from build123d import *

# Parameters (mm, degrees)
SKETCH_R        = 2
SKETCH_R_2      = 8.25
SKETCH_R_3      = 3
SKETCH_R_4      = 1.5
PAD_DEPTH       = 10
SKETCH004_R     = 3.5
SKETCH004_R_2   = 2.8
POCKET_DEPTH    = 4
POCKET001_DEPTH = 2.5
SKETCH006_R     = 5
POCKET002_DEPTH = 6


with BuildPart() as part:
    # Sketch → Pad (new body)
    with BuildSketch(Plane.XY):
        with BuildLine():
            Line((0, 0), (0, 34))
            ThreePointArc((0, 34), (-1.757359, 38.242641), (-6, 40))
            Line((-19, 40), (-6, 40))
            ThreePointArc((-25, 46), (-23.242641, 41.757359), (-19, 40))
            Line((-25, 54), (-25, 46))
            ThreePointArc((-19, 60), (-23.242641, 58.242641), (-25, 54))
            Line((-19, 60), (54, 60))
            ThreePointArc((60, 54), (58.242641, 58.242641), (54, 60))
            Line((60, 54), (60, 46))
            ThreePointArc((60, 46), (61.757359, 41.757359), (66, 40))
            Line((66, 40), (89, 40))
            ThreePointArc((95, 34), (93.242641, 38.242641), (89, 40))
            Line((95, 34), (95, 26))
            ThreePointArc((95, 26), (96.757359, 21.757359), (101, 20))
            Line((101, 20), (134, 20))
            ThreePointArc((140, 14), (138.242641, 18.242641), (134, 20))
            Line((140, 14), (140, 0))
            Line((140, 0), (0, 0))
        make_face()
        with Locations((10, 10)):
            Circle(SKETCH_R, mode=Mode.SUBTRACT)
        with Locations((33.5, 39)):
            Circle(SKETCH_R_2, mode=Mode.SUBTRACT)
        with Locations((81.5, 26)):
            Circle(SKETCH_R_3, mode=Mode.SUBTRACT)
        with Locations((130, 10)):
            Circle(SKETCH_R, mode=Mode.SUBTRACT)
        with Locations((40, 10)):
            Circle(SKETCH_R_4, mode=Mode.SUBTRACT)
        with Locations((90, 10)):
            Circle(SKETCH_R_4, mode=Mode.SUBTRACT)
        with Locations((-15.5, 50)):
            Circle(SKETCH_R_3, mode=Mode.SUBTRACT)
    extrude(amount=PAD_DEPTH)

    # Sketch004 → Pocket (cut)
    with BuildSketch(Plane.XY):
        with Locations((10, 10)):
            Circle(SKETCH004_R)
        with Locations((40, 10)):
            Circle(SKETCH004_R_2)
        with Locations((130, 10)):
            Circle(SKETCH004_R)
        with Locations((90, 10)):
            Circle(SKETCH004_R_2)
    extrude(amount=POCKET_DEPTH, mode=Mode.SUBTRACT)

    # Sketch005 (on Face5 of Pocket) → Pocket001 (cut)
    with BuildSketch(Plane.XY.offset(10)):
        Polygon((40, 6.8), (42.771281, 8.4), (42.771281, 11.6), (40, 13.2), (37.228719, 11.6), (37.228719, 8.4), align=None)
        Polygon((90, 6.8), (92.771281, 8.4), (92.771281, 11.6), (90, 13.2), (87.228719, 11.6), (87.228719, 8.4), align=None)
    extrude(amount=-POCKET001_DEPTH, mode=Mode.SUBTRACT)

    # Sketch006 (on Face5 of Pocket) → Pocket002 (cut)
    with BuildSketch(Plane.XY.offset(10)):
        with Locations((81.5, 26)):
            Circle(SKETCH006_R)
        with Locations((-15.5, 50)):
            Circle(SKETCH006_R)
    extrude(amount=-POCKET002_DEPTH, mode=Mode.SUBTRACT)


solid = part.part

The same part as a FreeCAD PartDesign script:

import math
import FreeCAD as App
import Part
import Sketcher

V = App.Vector
Q = App.Units.Quantity

doc = App.newDocument("Part")
body = doc.addObject("PartDesign::Body", "Body")

sketch1 = body.newObject("Sketcher::SketchObject", "Sketch")
sketch1.AttachmentSupport = (doc.getObject("XY_Plane"), [""])
sketch1.MapMode = "FlatFace"
sketch1.addGeometry(Part.LineSegment(V(0, 34, 0), V(0, 0, 0)), False)
sketch1.addGeometry(Part.LineSegment(V(0, 0, 0), V(140, 0, 0)), False)
sketch1.addGeometry(Part.LineSegment(V(140, 0, 0), V(140, 14, 0)), False)
sketch1.addGeometry(Part.ArcOfCircle(Part.Circle(V(134, 14, 0), V(0, 0, 1), 6), math.radians(0), math.radians(90)), False)
sketch1.addGeometry(Part.LineSegment(V(134, 20, 0), V(101, 20, 0)), False)
sketch1.addGeometry(Part.ArcOfCircle(Part.Circle(V(101, 26, 0), V(0, 0, 1), 6), math.radians(180), math.radians(270)), False)
sketch1.addGeometry(Part.LineSegment(V(95, 26, 0), V(95, 34, 0)), False)
sketch1.addGeometry(Part.ArcOfCircle(Part.Circle(V(89, 34, 0), V(0, 0, 1), 6), math.radians(0), math.radians(90)), False)
sketch1.addGeometry(Part.LineSegment(V(89, 40, 0), V(66, 40, 0)), False)
sketch1.addGeometry(Part.ArcOfCircle(Part.Circle(V(66, 46, 0), V(0, 0, 1), 6), math.radians(180), math.radians(270)), False)
sketch1.addGeometry(Part.LineSegment(V(60, 46, 0), V(60, 54, 0)), False)
sketch1.addGeometry(Part.ArcOfCircle(Part.Circle(V(54, 54, 0), V(0, 0, 1), 6), math.radians(0), math.radians(90)), False)
sketch1.addGeometry(Part.LineSegment(V(54, 60, 0), V(-19, 60, 0)), False)
sketch1.addGeometry(Part.ArcOfCircle(Part.Circle(V(-19, 54, 0), V(0, 0, 1), 6), math.radians(90), math.radians(180)), False)
sketch1.addGeometry(Part.LineSegment(V(-25, 54, 0), V(-25, 46, 0)), False)
sketch1.addGeometry(Part.ArcOfCircle(Part.Circle(V(-19, 46, 0), V(0, 0, 1), 6), math.radians(180), math.radians(270)), False)
sketch1.addGeometry(Part.LineSegment(V(-19, 40, 0), V(-6, 40, 0)), False)
sketch1.addGeometry(Part.ArcOfCircle(Part.Circle(V(-6, 34, 0), V(0, 0, 1), 6), math.radians(0), math.radians(90)), False)
sketch1.addGeometry(Part.Circle(V(130, 10, 0), V(0, 0, 1), 2), False)
sketch1.addGeometry(Part.Circle(V(90, 10, 0), V(0, 0, 1), 1.5), False)
sketch1.addGeometry(Part.Circle(V(81.5, 26, 0), V(0, 0, 1), 3), False)
sketch1.addGeometry(Part.Circle(V(40, 10, 0), V(0, 0, 1), 1.5), False)
sketch1.addGeometry(Part.Circle(V(10, 10, 0), V(0, 0, 1), 2), False)
sketch1.addGeometry(Part.Circle(V(33.5, 39, 0), V(0, 0, 1), 8.2), False)
sketch1.addGeometry(Part.Circle(V(-15.5, 50, 0), V(0, 0, 1), 3), False)
sketch1.addConstraint(Sketcher.Constraint("Coincident", 0, 2, 1, 1))
sketch1.addConstraint(Sketcher.Constraint("Coincident", 1, 2, 2, 1))
sketch1.addConstraint(Sketcher.Constraint("Tangent", 2, 2, 3, 1))
sketch1.addConstraint(Sketcher.Constraint("Tangent", 3, 2, 4, 1))
sketch1.addConstraint(Sketcher.Constraint("Tangent", 4, 2, 5, 2))
sketch1.addConstraint(Sketcher.Constraint("Tangent", 5, 1, 6, 1))
sketch1.addConstraint(Sketcher.Constraint("Tangent", 6, 2, 7, 1))
sketch1.addConstraint(Sketcher.Constraint("Tangent", 7, 2, 8, 1))
sketch1.addConstraint(Sketcher.Constraint("Tangent", 8, 2, 9, 2))
sketch1.addConstraint(Sketcher.Constraint("Tangent", 9, 1, 10, 1))
sketch1.addConstraint(Sketcher.Constraint("Tangent", 10, 2, 11, 1))
sketch1.addConstraint(Sketcher.Constraint("Tangent", 11, 2, 12, 1))
sketch1.addConstraint(Sketcher.Constraint("Tangent", 12, 2, 13, 1))
sketch1.addConstraint(Sketcher.Constraint("Tangent", 13, 2, 14, 1))
sketch1.addConstraint(Sketcher.Constraint("Tangent", 14, 2, 15, 1))
sketch1.addConstraint(Sketcher.Constraint("Tangent", 15, 2, 16, 1))
sketch1.addConstraint(Sketcher.Constraint("Tangent", 16, 2, 17, 2))
sketch1.addConstraint(Sketcher.Constraint("Tangent", 17, 1, 0, 1))
sketch1.addConstraint(Sketcher.Constraint("Vertical", 0))
sketch1.addConstraint(Sketcher.Constraint("Horizontal", 1))
sketch1.addConstraint(Sketcher.Constraint("Vertical", 2))
sketch1.addConstraint(Sketcher.Constraint("Horizontal", 4))
sketch1.addConstraint(Sketcher.Constraint("Vertical", 6))
sketch1.addConstraint(Sketcher.Constraint("Horizontal", 8))
sketch1.addConstraint(Sketcher.Constraint("Vertical", 10))
sketch1.addConstraint(Sketcher.Constraint("Horizontal", 12))
sketch1.addConstraint(Sketcher.Constraint("Vertical", 14))
sketch1.addConstraint(Sketcher.Constraint("Horizontal", 16))
sketch1.addConstraint(Sketcher.Constraint("Coincident", 0, 2, -1, 1))
sketch1.addConstraint(Sketcher.Constraint("Equal", 3, 5))
sketch1.addConstraint(Sketcher.Constraint("Equal", 5, 7))
sketch1.addConstraint(Sketcher.Constraint("Equal", 7, 9))
sketch1.addConstraint(Sketcher.Constraint("Equal", 9, 11))
sketch1.addConstraint(Sketcher.Constraint("Equal", 11, 13))
sketch1.addConstraint(Sketcher.Constraint("Equal", 13, 15))
sketch1.addConstraint(Sketcher.Constraint("Equal", 15, 17))
sketch1.addConstraint(Sketcher.Constraint("Equal", 19, 21))
sketch1.addConstraint(Sketcher.Constraint("Equal", 18, 22))
sketch1.addConstraint(Sketcher.Constraint("Equal", 20, 24))
sketch1.addConstraint(Sketcher.Constraint("Horizontal", 9, 3, 15, 3))
sketch1.addConstraint(Sketcher.Constraint("Horizontal", 18, 3, 19, 3))
sketch1.addConstraint(Sketcher.Constraint("Horizontal", 5, 3, 20, 3))
sketch1.addConstraint(Sketcher.Constraint("Horizontal", 19, 3, 21, 3))
sketch1.addConstraint(Sketcher.Constraint("Horizontal", 21, 3, 22, 3))
sketch1.addConstraint(Sketcher.Constraint("Equal", 6, 10))
sketch1.addConstraint(Sketcher.Constraint("Diameter", 18, Q("4 mm")))
sketch1.addConstraint(Sketcher.Constraint("Diameter", 19, Q("3 mm")))
sketch1.addConstraint(Sketcher.Constraint("Diameter", 20, Q("6 mm")))
sketch1.addConstraint(Sketcher.Constraint("Radius", 3, Q("5.999999 mm")))
sketch1.addConstraint(Sketcher.Constraint("Diameter", 23, Q("16.5 mm")))
sketch1.addConstraint(Sketcher.Constraint("DistanceX", 1, 1, 1, 2, Q("140 mm")))
sketch1.addConstraint(Sketcher.Constraint("DistanceX", 4, 2, 4, 1, Q("33 mm")))
sketch1.addConstraint(Sketcher.Constraint("DistanceX", 8, 2, 8, 1, Q("23 mm")))
sketch1.addConstraint(Sketcher.Constraint("DistanceX", 12, 2, 12, 1, Q("73 mm")))
sketch1.addConstraint(Sketcher.Constraint("DistanceY", 0, 2, 0, 1, Q("34 mm")))
sketch1.addConstraint(Sketcher.Constraint("DistanceY", 2, 1, 2, 2, Q("14 mm")))
sketch1.addConstraint(Sketcher.Constraint("DistanceX", -1, 1, 18, 3, Q("130 mm")))
sketch1.addConstraint(Sketcher.Constraint("DistanceY", -1, 1, 18, 3, Q("10 mm")))
sketch1.addConstraint(Sketcher.Constraint("DistanceX", -1, 1, 19, 3, Q("90 mm")))
sketch1.addConstraint(Sketcher.Constraint("DistanceX", -1, 1, 21, 3, Q("40 mm")))
sketch1.addConstraint(Sketcher.Constraint("DistanceX", -1, 1, 22, 3, Q("10 mm")))
sketch1.addConstraint(Sketcher.Constraint("DistanceY", -1, 1, 23, 3, Q("39 mm")))
sketch1.addConstraint(Sketcher.Constraint("DistanceY", -1, 1, 24, 3, Q("50 mm")))
sketch1.addConstraint(Sketcher.Constraint("DistanceX", 24, 3, 23, 3, Q("49 mm")))
sketch1.addConstraint(Sketcher.Constraint("DistanceX", -1, 1, 20, 3, Q("81.5 mm")))
sketch1.addConstraint(Sketcher.Constraint("DistanceX", -1, 1, 23, 3, Q("33.5 mm")))
pad1 = body.newObject("PartDesign::Pad", "Pad")
pad1.Profile = sketch1
pad1.Length = 10

sketch2 = body.newObject("Sketcher::SketchObject", "Sketch001")
sketch2.AttachmentSupport = (doc.getObject("XY_Plane"), [""])
sketch2.MapMode = "FlatFace"
sketch2.addGeometry(Part.Circle(V(10, 10, 0), V(0, 0, 1), 3.5), False)
sketch2.addGeometry(Part.Circle(V(40, 10, 0), V(0, 0, 1), 2.8), False)
sketch2.addGeometry(Part.Circle(V(130, 10, 0), V(0, 0, 1), 3.5), False)
sketch2.addGeometry(Part.Circle(V(90, 10, 0), V(0, 0, 1), 2.8), False)
sketch2.addConstraint(Sketcher.Constraint("Equal", 0, 2))
sketch2.addConstraint(Sketcher.Constraint("Equal", 1, 3))
sketch2.addConstraint(Sketcher.Constraint("Horizontal", 0, 3, 1, 3))
sketch2.addConstraint(Sketcher.Constraint("Horizontal", 1, 3, 2, 3))
sketch2.addConstraint(Sketcher.Constraint("Horizontal", 2, 3, 3, 3))
sketch2.addConstraint(Sketcher.Constraint("Diameter", 0, Q("7 mm")))
sketch2.addConstraint(Sketcher.Constraint("Diameter", 1, Q("5.6 mm")))
sketch2.addConstraint(Sketcher.Constraint("DistanceX", -1, 1, 0, 3, Q("10 mm")))
sketch2.addConstraint(Sketcher.Constraint("DistanceY", -1, 1, 0, 3, Q("10 mm")))
sketch2.addConstraint(Sketcher.Constraint("DistanceX", -1, 1, 1, 3, Q("40 mm")))
sketch2.addConstraint(Sketcher.Constraint("DistanceX", -1, 1, 2, 3, Q("130 mm")))
sketch2.addConstraint(Sketcher.Constraint("DistanceX", -1, 1, 3, 3, Q("90 mm")))
pocket1 = body.newObject("PartDesign::Pocket", "Pocket")
pocket1.Profile = sketch2
pocket1.Length = 4
pocket1.Reversed = True

sketch3 = body.newObject("Sketcher::SketchObject", "Sketch002")
sketch3.AttachmentSupport = (doc.getObject("XY_Plane"), [""])
sketch3.MapMode = "FlatFace"
sketch3.AttachmentOffset = App.Placement(V(0, 0, 10), App.Rotation())
sketch3.addGeometry(Part.LineSegment(V(40, 6.8, 0), V(42.8, 8.4, 0)), False)
sketch3.addGeometry(Part.LineSegment(V(42.8, 8.4, 0), V(42.8, 11.6, 0)), False)
sketch3.addGeometry(Part.LineSegment(V(42.8, 11.6, 0), V(40, 13.2, 0)), False)
sketch3.addGeometry(Part.LineSegment(V(40, 13.2, 0), V(37.2, 11.6, 0)), False)
sketch3.addGeometry(Part.LineSegment(V(37.2, 11.6, 0), V(37.2, 8.4, 0)), False)
sketch3.addGeometry(Part.LineSegment(V(37.2, 8.4, 0), V(40, 6.8, 0)), False)
sketch3.addGeometry(Part.LineSegment(V(90, 6.8, 0), V(92.8, 8.4, 0)), False)
sketch3.addGeometry(Part.LineSegment(V(92.8, 8.4, 0), V(92.8, 11.6, 0)), False)
sketch3.addGeometry(Part.LineSegment(V(92.8, 11.6, 0), V(90, 13.2, 0)), False)
sketch3.addGeometry(Part.LineSegment(V(90, 13.2, 0), V(87.2, 11.6, 0)), False)
sketch3.addGeometry(Part.LineSegment(V(87.2, 11.6, 0), V(87.2, 8.4, 0)), False)
sketch3.addGeometry(Part.LineSegment(V(87.2, 8.4, 0), V(90, 6.8, 0)), False)
sketch3.addConstraint(Sketcher.Constraint("Coincident", 0, 2, 1, 1))
sketch3.addConstraint(Sketcher.Constraint("Coincident", 1, 2, 2, 1))
sketch3.addConstraint(Sketcher.Constraint("Coincident", 2, 2, 3, 1))
sketch3.addConstraint(Sketcher.Constraint("Coincident", 3, 2, 4, 1))
sketch3.addConstraint(Sketcher.Constraint("Coincident", 4, 2, 5, 1))
sketch3.addConstraint(Sketcher.Constraint("Coincident", 5, 2, 0, 1))
sketch3.addConstraint(Sketcher.Constraint("Coincident", 6, 2, 7, 1))
sketch3.addConstraint(Sketcher.Constraint("Coincident", 7, 2, 8, 1))
sketch3.addConstraint(Sketcher.Constraint("Coincident", 8, 2, 9, 1))
sketch3.addConstraint(Sketcher.Constraint("Coincident", 9, 2, 10, 1))
sketch3.addConstraint(Sketcher.Constraint("Coincident", 10, 2, 11, 1))
sketch3.addConstraint(Sketcher.Constraint("Coincident", 11, 2, 6, 1))
sketch3.addConstraint(Sketcher.Constraint("Vertical", 1))
sketch3.addConstraint(Sketcher.Constraint("Vertical", 4))
sketch3.addConstraint(Sketcher.Constraint("Vertical", 7))
sketch3.addConstraint(Sketcher.Constraint("Vertical", 10))
sketch3.addConstraint(Sketcher.Constraint("Parallel", 0, 3))
sketch3.addConstraint(Sketcher.Constraint("Parallel", 2, 5))
sketch3.addConstraint(Sketcher.Constraint("Parallel", 3, 6))
sketch3.addConstraint(Sketcher.Constraint("Parallel", 5, 8))
sketch3.addConstraint(Sketcher.Constraint("Parallel", 6, 9))
sketch3.addConstraint(Sketcher.Constraint("Parallel", 8, 11))
sketch3.addConstraint(Sketcher.Constraint("Horizontal", 1, 2, 3, 2))
sketch3.addConstraint(Sketcher.Constraint("Horizontal", 0, 2, 4, 2))
sketch3.addConstraint(Sketcher.Constraint("Horizontal", 4, 2, 6, 2))
sketch3.addConstraint(Sketcher.Constraint("Horizontal", 3, 2, 7, 2))
sketch3.addConstraint(Sketcher.Constraint("Horizontal", 2, 2, 8, 2))
sketch3.addConstraint(Sketcher.Constraint("Horizontal", 7, 2, 9, 2))
sketch3.addConstraint(Sketcher.Constraint("Horizontal", 6, 2, 10, 2))
sketch3.addConstraint(Sketcher.Constraint("Vertical", 2, 2, 5, 2))
sketch3.addConstraint(Sketcher.Constraint("Angle", 0, Q("30.000003 deg")))
sketch3.addConstraint(Sketcher.Constraint("DistanceY", 1, 1, 1, 2, Q("3.2 mm")))
sketch3.addConstraint(Sketcher.Constraint("DistanceX", -1, 1, 2, 2, Q("40 mm")))
sketch3.addConstraint(Sketcher.Constraint("DistanceX", -1, 1, 8, 2, Q("90 mm")))
sketch3.addConstraint(Sketcher.Constraint("Distance", 0, Q("3.2 mm")))
sketch3.addConstraint(Sketcher.Constraint("DistanceY", -1, 1, 0, 2, Q("8.4 mm")))
pocket2 = body.newObject("PartDesign::Pocket", "Pocket001")
pocket2.Profile = sketch3
pocket2.Length = 2.5

sketch4 = body.newObject("Sketcher::SketchObject", "Sketch003")
sketch4.AttachmentSupport = (doc.getObject("XY_Plane"), [""])
sketch4.MapMode = "FlatFace"
sketch4.AttachmentOffset = App.Placement(V(0, 0, 10), App.Rotation())
sketch4.addGeometry(Part.Circle(V(82, 26, 0), V(0, 0, 1), 5), False)
sketch4.addGeometry(Part.Circle(V(-16, 50, 0), V(0, 0, 1), 5), False)
sketch4.addConstraint(Sketcher.Constraint("Equal", 0, 1))
sketch4.addConstraint(Sketcher.Constraint("Diameter", 0, Q("10 mm")))
sketch4.addConstraint(Sketcher.Constraint("DistanceY", -1, 1, 0, 3, Q("26 mm")))
sketch4.addConstraint(Sketcher.Constraint("DistanceY", -1, 1, 1, 3, Q("50 mm")))
sketch4.addConstraint(Sketcher.Constraint("DistanceX", 1, 3, 0, 3, Q("97 mm")))
sketch4.addConstraint(Sketcher.Constraint("DistanceX", -1, 1, 0, 3, Q("81.5 mm")))
pocket3 = body.newObject("PartDesign::Pocket", "Pocket002")
pocket3.Profile = sketch4
pocket3.Length = 6

doc.recompute()
